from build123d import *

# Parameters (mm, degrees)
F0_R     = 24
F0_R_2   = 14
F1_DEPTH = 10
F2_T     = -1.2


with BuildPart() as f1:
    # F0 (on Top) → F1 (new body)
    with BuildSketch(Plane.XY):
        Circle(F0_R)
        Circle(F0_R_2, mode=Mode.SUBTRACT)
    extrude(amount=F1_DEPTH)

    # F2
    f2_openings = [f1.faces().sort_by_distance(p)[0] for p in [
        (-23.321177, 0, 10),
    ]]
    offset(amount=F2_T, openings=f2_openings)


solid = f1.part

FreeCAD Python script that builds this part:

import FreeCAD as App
import Part
import Sketcher
from FreeCAD import Vector


def faces_at(feature, points):
    """Names of the faces that lie closest to the given points."""
    faces = feature.Shape.Faces
    near = lambda p: min(range(len(faces)), key=lambda i: faces[i].distToShape(Part.Vertex(*p))[0])
    return sorted({f"Face{near(p) + 1}" for p in points})

doc = App.newDocument("Part")
body = doc.addObject("PartDesign::Body", "Body")

# Sketch on XY plane
sketch1 = body.newObject("Sketcher::SketchObject", "Sketch")
sketch1.AttachmentSupport = (doc.getObject("XY_Plane"), [""])
sketch1.MapMode = "FlatFace"
sketch1.addGeometry(Part.Circle(Vector(0, 0, 0), Vector(0, 0, 1), 24), False)
sketch1.addGeometry(Part.Circle(Vector(0, 0, 0), Vector(0, 0, 1), 14), False)
sketch1.addConstraint(Sketcher.Constraint("Coincident", 0, 3, -1, 1))
sketch1.addConstraint(Sketcher.Constraint("Coincident", 1, 3, -1, 1))
sketch1.addConstraint(Sketcher.Constraint("Diameter", 0, 48.0))
sketch1.addConstraint(Sketcher.Constraint("Diameter", 1, 28.0))
pad1 = body.newObject("PartDesign::Pad", "Pad")
pad1.Profile = sketch1
pad1.Length = 10
doc.recompute()

thickness = body.newObject("PartDesign::Thickness", "Thickness")
thickness.Base = (pad1, faces_at(pad1, [(-19.2, 0, 10)]))
thickness.Value = 1.2
thickness.Reversed = True
thickness.Join = "Arc"

doc.recompute()
